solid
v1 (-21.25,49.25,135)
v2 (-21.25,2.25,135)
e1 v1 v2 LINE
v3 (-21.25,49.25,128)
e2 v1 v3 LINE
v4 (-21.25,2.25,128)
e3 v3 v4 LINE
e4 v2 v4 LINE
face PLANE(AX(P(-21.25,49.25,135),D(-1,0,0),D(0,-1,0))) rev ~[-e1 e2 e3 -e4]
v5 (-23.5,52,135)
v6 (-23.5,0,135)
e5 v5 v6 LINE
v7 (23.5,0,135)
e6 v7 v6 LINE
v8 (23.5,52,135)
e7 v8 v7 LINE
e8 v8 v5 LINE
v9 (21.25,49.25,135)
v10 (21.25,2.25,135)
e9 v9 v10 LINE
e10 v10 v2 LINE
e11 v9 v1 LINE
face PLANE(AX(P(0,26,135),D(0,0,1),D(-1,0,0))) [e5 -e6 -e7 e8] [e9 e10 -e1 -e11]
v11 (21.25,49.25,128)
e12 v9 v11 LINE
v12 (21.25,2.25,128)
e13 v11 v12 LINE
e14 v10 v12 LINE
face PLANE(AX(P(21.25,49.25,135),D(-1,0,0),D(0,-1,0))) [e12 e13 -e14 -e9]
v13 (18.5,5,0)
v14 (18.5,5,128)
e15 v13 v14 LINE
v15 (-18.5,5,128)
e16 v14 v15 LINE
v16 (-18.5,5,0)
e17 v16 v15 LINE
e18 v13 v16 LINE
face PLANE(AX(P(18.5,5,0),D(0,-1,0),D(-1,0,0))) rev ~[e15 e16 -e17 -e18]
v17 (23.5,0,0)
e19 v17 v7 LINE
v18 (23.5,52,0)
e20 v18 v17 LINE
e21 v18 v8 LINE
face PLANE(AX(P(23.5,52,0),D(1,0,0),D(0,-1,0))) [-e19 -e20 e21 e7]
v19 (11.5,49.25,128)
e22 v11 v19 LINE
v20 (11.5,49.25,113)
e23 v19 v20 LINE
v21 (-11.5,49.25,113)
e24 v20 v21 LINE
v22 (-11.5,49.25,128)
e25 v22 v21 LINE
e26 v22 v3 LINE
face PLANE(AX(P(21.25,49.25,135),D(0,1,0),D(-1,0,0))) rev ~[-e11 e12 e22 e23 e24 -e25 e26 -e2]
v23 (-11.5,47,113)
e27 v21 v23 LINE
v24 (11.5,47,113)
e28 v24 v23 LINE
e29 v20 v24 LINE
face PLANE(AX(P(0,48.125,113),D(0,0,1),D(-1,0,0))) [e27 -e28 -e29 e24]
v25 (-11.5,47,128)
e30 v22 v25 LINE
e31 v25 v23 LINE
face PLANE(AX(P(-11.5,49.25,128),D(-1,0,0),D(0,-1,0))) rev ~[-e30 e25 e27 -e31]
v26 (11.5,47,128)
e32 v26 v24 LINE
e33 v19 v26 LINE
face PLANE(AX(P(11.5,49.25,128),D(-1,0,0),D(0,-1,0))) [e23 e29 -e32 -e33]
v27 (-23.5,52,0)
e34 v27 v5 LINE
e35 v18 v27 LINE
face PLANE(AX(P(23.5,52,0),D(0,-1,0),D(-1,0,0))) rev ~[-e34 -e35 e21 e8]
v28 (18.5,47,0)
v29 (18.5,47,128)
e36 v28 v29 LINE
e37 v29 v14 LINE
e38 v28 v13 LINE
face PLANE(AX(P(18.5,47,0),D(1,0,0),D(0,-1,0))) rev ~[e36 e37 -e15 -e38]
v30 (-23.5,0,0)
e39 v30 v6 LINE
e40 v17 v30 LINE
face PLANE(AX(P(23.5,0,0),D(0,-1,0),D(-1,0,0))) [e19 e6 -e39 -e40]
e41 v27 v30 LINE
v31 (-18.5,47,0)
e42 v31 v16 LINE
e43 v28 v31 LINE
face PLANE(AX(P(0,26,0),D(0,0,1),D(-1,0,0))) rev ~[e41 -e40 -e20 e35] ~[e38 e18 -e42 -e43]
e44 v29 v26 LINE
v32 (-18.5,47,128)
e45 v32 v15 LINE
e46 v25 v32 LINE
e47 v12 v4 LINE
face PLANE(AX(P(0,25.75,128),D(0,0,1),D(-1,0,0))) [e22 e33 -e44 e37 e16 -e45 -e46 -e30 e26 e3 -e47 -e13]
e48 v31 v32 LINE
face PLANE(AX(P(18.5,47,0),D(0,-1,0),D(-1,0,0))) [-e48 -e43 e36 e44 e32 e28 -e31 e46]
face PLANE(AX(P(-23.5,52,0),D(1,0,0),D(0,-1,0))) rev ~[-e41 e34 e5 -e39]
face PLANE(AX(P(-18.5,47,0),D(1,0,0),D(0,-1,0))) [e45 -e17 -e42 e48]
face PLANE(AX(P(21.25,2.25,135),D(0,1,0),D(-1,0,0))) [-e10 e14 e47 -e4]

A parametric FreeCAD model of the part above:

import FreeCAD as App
import Part
import Sketcher
Q = App.Units.Quantity


def add_polygon(sketch, points):
    """Adds a closed chain of lines whose ends are joined by coincident constraints."""
    first, n = sketch.GeometryCount, len(points)
    for a, b in zip(points, points[1:] + points[:1]):
        sketch.addGeometry(Part.LineSegment(App.Vector(*a, 0), App.Vector(*b, 0)), False)
    for i in range(n):
        sketch.addConstraint(Sketcher.Constraint("Coincident", first + i, 2, first + (i + 1) % n, 1))

doc = App.newDocument("Part")
body = doc.addObject("PartDesign::Body", "Body")

sketch1 = doc.addObject("Sketcher::SketchObject", "Sketch")
body.addObject(sketch1)
sketch1.AttachmentSupport = (doc.XY_Plane, [""])
sketch1.MapMode = "FlatFace"
add_polygon(sketch1, [(-24, 0), (-24, -52), (24, -52), (24, 0)])
add_polygon(sketch1, [(18, -47), (-18, -47), (-18, -5), (18, -5)])
sketch1.addConstraint(Sketcher.Constraint("Vertical", 0))
sketch1.addConstraint(Sketcher.Constraint("Horizontal", 1))
sketch1.addConstraint(Sketcher.Constraint("Vertical", 2))
sketch1.addConstraint(Sketcher.Constraint("Horizontal", 3))
sketch1.addConstraint(Sketcher.Constraint("Horizontal", 4))
sketch1.addConstraint(Sketcher.Constraint("Vertical", 5))
sketch1.addConstraint(Sketcher.Constraint("Horizontal", 6))
sketch1.addConstraint(Sketcher.Constraint("Vertical", 7))
sketch1.addConstraint(Sketcher.Constraint("Symmetric", 2, 2, 3, 2, -1, 1))
sketch1.addConstraint(Sketcher.Constraint("DistanceX", 1, 1, 1, 2, Q("47 mm")))
sketch1.addConstraint(Sketcher.Constraint("DistanceX", 4, 2, 4, 1, Q("37 mm")))
sketch1.addConstraint(Sketcher.Constraint("DistanceY", 0, 2, 0, 1, Q("52 mm")))
sketch1.addConstraint(Sketcher.Constraint("DistanceY", 5, 1, 5, 2, Q("42 mm")))
sketch1.addConstraint(Sketcher.Constraint("DistanceY", 4, 2, -1, 1, Q("47 mm")))
sketch1.addConstraint(Sketcher.Constraint("DistanceX", 0, 2, 4, 2, Q("5 mm")))
pad1 = doc.addObject("PartDesign::Pad", "Pad")
body.addObject(pad1)
pad1.Profile = sketch1
pad1.Length = 135

sketch2 = doc.addObject("Sketcher::SketchObject", "Sketch001")
body.addObject(sketch2)
sketch2.AttachmentSupport = (doc.XY_Plane, [""])
sketch2.MapMode = "FlatFace"
sketch2.AttachmentOffset = App.Placement(App.Vector(0, 0, 135), App.Rotation())
add_polygon(sketch2, [(-21, -2), (-21, -49), (21, -49), (21, -2)])
sketch2.addConstraint(Sketcher.Constraint("Vertical", 0))
sketch2.addConstraint(Sketcher.Constraint("Horizontal", 1))
sketch2.addConstraint(Sketcher.Constraint("Vertical", 2))
sketch2.addConstraint(Sketcher.Constraint("Horizontal", 3))
sketch2.addConstraint(Sketcher.Constraint("DistanceY", 0, 2, 0, 1, Q("47 mm")))
sketch2.addConstraint(Sketcher.Constraint("DistanceX", 1, 1, 1, 2, Q("42.5 mm")))
sketch2.addConstraint(Sketcher.Constraint("DistanceX", 0, 2, -1, 1, Q("21.25 mm")))
sketch2.addConstraint(Sketcher.Constraint("DistanceY", 0, 2, -1, 1, Q("49.25 mm")))
pocket1 = doc.addObject("PartDesign::Pocket", "Pocket")
body.addObject(pocket1)
pocket1.Profile = sketch2
pocket1.Length = 7

sketch3 = doc.addObject("Sketcher::SketchObject", "Sketch002")
body.addObject(sketch3)
sketch3.AttachmentSupport = (doc.XY_Plane, [""])
sketch3.MapMode = "FlatFace"
sketch3.AttachmentOffset = App.Placement(App.Vector(0, 0, 128), App.Rotation())
add_polygon(sketch3, [(-11.5, -47), (-11.5, -49.2), (11.5, -49.2), (11.5, -47)])
sketch3.addConstraint(Sketcher.Constraint("Vertical", 0))
sketch3.addConstraint(Sketcher.Constraint("Horizontal", 1))
sketch3.addConstraint(Sketcher.Constraint("Vertical", 2))
sketch3.addConstraint(Sketcher.Constraint("Horizontal", 3))
sketch3.addConstraint(Sketcher.Constraint("DistanceX", 1, 1, 1, 2, Q("23 mm")))
sketch3.addConstraint(Sketcher.Constraint("DistanceY", 2, 2, -1, 1, Q("47 mm")))
sketch3.addConstraint(Sketcher.Constraint("DistanceY", 0, 2, 0, 1, Q("2.25 mm")))
sketch3.addConstraint(Sketcher.Constraint("DistanceX", 0, 2, -1, 1, Q("11.5 mm")))
pocket2 = doc.addObject("PartDesign::Pocket", "Pocket001")
body.addObject(pocket2)
pocket2.Profile = sketch3
pocket2.Length = 15
body2 = doc.addObject("PartDesign::Body", "Body001")
doc.recompute()

body.Placement = App.Placement(App.Vector(0, 0, 0), App.Rotation(App.Vector(0, 0, 1), 180))
boolean = doc.addObject("PartDesign::Boolean", "Boolean")
body2.addObject(boolean)
boolean.Type = "Fuse"
boolean.addObjects([body])

doc.recompute()
